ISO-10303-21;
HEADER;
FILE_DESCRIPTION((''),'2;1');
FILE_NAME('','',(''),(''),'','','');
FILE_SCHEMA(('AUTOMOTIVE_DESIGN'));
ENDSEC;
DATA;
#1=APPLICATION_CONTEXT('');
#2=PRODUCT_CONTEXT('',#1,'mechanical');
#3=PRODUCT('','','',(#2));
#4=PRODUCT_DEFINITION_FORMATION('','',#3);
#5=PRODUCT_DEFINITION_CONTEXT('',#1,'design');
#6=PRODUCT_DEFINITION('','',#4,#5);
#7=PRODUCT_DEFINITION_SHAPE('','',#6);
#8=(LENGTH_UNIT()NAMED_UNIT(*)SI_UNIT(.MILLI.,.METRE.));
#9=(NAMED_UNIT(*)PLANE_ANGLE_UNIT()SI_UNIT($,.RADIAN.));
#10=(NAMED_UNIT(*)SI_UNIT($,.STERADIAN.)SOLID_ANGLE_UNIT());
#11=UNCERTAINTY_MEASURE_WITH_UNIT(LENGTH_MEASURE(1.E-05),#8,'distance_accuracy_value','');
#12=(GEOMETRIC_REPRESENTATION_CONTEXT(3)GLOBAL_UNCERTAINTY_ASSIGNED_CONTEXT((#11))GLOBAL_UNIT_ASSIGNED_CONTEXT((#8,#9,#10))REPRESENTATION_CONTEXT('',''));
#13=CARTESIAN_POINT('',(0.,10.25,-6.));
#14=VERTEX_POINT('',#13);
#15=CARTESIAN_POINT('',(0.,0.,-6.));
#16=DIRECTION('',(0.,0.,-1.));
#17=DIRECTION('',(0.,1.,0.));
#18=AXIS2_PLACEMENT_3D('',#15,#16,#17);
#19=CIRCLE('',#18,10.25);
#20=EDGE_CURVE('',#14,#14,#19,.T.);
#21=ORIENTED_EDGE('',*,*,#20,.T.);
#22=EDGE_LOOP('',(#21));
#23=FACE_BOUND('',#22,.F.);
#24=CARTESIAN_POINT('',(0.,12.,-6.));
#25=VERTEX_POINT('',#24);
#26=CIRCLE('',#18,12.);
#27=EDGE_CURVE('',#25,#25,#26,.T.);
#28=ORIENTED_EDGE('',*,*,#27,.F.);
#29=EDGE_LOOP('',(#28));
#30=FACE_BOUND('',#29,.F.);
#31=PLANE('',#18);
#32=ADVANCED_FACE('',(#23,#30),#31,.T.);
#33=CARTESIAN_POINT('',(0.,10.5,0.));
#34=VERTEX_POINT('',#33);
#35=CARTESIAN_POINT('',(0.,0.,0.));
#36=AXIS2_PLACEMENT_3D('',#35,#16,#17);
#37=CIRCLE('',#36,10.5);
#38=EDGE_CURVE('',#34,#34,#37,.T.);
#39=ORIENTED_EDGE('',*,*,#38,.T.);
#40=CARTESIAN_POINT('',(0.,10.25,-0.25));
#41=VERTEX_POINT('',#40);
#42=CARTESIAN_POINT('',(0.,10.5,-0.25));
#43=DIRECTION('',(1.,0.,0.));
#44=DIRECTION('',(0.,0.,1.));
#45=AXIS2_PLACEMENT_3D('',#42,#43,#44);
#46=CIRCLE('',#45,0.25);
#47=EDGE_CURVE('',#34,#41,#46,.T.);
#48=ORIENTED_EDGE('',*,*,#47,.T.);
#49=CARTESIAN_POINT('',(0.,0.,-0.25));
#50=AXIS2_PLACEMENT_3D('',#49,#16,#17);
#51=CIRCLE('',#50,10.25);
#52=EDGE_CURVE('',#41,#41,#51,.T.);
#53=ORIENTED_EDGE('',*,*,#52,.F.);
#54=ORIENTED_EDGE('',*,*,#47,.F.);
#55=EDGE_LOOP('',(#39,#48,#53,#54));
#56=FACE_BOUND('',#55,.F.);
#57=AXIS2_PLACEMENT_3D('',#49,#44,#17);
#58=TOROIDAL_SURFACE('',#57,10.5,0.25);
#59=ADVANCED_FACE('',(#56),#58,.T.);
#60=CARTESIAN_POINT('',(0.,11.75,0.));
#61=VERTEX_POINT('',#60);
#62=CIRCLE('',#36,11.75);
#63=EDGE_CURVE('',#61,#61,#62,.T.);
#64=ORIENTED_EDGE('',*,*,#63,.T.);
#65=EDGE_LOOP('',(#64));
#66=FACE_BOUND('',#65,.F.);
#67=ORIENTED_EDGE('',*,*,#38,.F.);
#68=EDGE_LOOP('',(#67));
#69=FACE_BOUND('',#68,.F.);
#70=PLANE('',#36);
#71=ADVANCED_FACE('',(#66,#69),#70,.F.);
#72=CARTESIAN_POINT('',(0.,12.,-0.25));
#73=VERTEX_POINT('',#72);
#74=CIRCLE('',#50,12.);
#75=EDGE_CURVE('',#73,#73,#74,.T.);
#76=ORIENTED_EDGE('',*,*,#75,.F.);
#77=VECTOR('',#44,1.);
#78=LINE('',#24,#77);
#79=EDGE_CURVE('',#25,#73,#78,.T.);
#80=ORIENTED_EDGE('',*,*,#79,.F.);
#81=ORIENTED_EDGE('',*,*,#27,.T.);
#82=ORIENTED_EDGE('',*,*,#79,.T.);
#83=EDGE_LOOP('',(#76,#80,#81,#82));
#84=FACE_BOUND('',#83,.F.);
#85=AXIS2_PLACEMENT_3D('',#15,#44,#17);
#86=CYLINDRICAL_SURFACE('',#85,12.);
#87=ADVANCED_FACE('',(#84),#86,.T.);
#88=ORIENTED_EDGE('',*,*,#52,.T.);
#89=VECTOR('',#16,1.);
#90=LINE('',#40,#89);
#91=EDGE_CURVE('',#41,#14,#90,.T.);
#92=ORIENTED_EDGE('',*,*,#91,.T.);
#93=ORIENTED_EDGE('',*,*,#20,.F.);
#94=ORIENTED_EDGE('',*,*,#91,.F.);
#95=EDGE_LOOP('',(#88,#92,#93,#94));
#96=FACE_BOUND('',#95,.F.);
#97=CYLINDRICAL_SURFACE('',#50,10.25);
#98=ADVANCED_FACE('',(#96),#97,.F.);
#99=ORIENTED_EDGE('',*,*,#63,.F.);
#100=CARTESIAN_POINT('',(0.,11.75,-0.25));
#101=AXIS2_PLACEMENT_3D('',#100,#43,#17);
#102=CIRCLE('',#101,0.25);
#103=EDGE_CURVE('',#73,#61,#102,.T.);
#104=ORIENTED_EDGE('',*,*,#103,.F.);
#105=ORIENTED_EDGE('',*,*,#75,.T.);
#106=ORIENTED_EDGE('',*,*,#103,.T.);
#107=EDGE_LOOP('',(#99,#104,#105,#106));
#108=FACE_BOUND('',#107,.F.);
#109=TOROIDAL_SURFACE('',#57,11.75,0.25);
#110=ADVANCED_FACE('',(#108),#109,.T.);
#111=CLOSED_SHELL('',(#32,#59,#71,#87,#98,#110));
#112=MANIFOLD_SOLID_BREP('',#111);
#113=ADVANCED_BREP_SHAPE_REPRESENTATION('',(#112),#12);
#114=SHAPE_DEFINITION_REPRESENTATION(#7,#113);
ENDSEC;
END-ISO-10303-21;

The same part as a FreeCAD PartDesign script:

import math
import FreeCAD as App
import Part
import Sketcher
from FreeCAD import Vector

doc = App.newDocument("Part")
params = doc.addObject("Spreadsheet::Sheet", "Params")
for row, (alias, value) in enumerate([
    ("sketch1_radius", "0.25 mm"),
    ("sketch1_width", "1.25 mm"),
    ("revolution_angle", "360 deg"),
], start=1):
    params.set(f"A{row}", alias)
    params.set(f"B{row}", "=" + value)
    params.setAlias(f"B{row}", alias)

body = doc.addObject("PartDesign::Body", "Body")

# Sketch on YZ plane
sketch1 = body.newObject("Sketcher::SketchObject", "Sketch")
sketch1.AttachmentSupport = (doc.getObject("YZ_Plane"), [""])
sketch1.MapMode = "FlatFace"
sketch1.addGeometry([
    Part.ArcOfCircle(Part.Circle(Vector(11.75, -0.25, 0), Vector(0, 0, 1), 0.25), math.radians(0), math.radians(90)),  # 0
    Part.LineSegment(Vector(11.75, 0, 0), Vector(10.5, 0, 0)),  # 1
    Part.ArcOfCircle(Part.Circle(Vector(10.5, -0.25, 0), Vector(0, 0, 1), 0.25), math.radians(90), math.radians(180)),  # 2
    Part.LineSegment(Vector(10.25, -0.25, 0), Vector(10.25, -6, 0)),  # 3
    Part.LineSegment(Vector(10.25, -6, 0), Vector(12, -6, 0)),  # 4
    Part.LineSegment(Vector(12, -6, 0), Vector(12, -0.25, 0)),  # 5
], False)
sketch1.addConstraint([
    Sketcher.Constraint("Tangent", 0, 2, 1, 1),
    Sketcher.Constraint("Tangent", 1, 2, 2, 1),
    Sketcher.Constraint("Tangent", 2, 2, 3, 1),
    Sketcher.Constraint("Coincident", 3, 2, 4, 1),
    Sketcher.Constraint("Coincident", 4, 2, 5, 1),
    Sketcher.Constraint("Tangent", 5, 2, 0, 1),
    Sketcher.Constraint("Horizontal", 1),
    Sketcher.Constraint("Vertical", 3),
    Sketcher.Constraint("Horizontal", 4),
    Sketcher.Constraint("Vertical", 5),
    Sketcher.Constraint("Equal", 0, 2),
    Sketcher.Constraint("PointOnObject", 0, 2, -1),
    Sketcher.Constraint("Radius", 0, 0.25),
    Sketcher.Constraint("DistanceY", 3, 2, -1, 1, 6.0),
    Sketcher.Constraint("DistanceX", -1, 1, 4, 2, 12.0),
    Sketcher.Constraint("DistanceX", 1, 2, 1, 1, 1.25),
])
sketch1.setExpression("Constraints[12]", "Params.sketch1_radius")
sketch1.setExpression("Constraints[15]", "Params.sketch1_width")
revolution = body.newObject("PartDesign::Revolution", "Revolution")
revolution.Profile = sketch1
revolution.ReferenceAxis = (sketch1, ["V_Axis"])
revolution.setExpression("Angle", "Params.revolution_angle")

doc.recompute()
